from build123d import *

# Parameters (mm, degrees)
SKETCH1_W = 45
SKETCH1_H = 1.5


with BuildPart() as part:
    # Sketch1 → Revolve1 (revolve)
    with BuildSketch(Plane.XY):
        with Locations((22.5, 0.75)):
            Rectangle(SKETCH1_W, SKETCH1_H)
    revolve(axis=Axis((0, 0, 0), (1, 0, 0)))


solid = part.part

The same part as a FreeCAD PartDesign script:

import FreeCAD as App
import Part
import Sketcher


def add_polygon(sketch, points):
    """Adds a closed chain of lines whose ends are joined by coincident constraints."""
    first, n = sketch.GeometryCount, len(points)
    for a, b in zip(points, points[1:] + points[:1]):
        sketch.addGeometry(Part.LineSegment(App.Vector(*a, 0), App.Vector(*b, 0)), False)
    for i in range(n):
        sketch.addConstraint(Sketcher.Constraint("Coincident", first + i, 2, first + (i + 1) % n, 1))

doc = App.newDocument("Part")
body = doc.addObject("PartDesign::Body", "Body")

# Sketch on XY plane
sketch1 = body.newObject("Sketcher::SketchObject", "Sketch")
sketch1.AttachmentSupport = (doc.getObject("XY_Plane"), [""])
sketch1.MapMode = "FlatFace"
add_polygon(sketch1, [(0, 1.5), (0, 0), (45, 0), (45, 1.5)])  # lines 0-3
sketch1.addConstraint(Sketcher.Constraint("Vertical", 0))
sketch1.addConstraint(Sketcher.Constraint("Horizontal", 1))
sketch1.addConstraint(Sketcher.Constraint("Vertical", 2))
sketch1.addConstraint(Sketcher.Constraint("Horizontal", 3))
sketch1.addConstraint(Sketcher.Constraint("Coincident", 0, 2, -1, 1))
sketch1.addConstraint(Sketcher.Constraint("DistanceX", 1, 1, 1, 2, 45.0))
sketch1.addConstraint(Sketcher.Constraint("DistanceY", 0, 2, 0, 1, 1.5))
revolution = body.newObject("PartDesign::Revolution", "Revolution")
revolution.Profile = sketch1
revolution.ReferenceAxis = (sketch1, ["H_Axis"])
revolution.Angle = 360

doc.recompute()
